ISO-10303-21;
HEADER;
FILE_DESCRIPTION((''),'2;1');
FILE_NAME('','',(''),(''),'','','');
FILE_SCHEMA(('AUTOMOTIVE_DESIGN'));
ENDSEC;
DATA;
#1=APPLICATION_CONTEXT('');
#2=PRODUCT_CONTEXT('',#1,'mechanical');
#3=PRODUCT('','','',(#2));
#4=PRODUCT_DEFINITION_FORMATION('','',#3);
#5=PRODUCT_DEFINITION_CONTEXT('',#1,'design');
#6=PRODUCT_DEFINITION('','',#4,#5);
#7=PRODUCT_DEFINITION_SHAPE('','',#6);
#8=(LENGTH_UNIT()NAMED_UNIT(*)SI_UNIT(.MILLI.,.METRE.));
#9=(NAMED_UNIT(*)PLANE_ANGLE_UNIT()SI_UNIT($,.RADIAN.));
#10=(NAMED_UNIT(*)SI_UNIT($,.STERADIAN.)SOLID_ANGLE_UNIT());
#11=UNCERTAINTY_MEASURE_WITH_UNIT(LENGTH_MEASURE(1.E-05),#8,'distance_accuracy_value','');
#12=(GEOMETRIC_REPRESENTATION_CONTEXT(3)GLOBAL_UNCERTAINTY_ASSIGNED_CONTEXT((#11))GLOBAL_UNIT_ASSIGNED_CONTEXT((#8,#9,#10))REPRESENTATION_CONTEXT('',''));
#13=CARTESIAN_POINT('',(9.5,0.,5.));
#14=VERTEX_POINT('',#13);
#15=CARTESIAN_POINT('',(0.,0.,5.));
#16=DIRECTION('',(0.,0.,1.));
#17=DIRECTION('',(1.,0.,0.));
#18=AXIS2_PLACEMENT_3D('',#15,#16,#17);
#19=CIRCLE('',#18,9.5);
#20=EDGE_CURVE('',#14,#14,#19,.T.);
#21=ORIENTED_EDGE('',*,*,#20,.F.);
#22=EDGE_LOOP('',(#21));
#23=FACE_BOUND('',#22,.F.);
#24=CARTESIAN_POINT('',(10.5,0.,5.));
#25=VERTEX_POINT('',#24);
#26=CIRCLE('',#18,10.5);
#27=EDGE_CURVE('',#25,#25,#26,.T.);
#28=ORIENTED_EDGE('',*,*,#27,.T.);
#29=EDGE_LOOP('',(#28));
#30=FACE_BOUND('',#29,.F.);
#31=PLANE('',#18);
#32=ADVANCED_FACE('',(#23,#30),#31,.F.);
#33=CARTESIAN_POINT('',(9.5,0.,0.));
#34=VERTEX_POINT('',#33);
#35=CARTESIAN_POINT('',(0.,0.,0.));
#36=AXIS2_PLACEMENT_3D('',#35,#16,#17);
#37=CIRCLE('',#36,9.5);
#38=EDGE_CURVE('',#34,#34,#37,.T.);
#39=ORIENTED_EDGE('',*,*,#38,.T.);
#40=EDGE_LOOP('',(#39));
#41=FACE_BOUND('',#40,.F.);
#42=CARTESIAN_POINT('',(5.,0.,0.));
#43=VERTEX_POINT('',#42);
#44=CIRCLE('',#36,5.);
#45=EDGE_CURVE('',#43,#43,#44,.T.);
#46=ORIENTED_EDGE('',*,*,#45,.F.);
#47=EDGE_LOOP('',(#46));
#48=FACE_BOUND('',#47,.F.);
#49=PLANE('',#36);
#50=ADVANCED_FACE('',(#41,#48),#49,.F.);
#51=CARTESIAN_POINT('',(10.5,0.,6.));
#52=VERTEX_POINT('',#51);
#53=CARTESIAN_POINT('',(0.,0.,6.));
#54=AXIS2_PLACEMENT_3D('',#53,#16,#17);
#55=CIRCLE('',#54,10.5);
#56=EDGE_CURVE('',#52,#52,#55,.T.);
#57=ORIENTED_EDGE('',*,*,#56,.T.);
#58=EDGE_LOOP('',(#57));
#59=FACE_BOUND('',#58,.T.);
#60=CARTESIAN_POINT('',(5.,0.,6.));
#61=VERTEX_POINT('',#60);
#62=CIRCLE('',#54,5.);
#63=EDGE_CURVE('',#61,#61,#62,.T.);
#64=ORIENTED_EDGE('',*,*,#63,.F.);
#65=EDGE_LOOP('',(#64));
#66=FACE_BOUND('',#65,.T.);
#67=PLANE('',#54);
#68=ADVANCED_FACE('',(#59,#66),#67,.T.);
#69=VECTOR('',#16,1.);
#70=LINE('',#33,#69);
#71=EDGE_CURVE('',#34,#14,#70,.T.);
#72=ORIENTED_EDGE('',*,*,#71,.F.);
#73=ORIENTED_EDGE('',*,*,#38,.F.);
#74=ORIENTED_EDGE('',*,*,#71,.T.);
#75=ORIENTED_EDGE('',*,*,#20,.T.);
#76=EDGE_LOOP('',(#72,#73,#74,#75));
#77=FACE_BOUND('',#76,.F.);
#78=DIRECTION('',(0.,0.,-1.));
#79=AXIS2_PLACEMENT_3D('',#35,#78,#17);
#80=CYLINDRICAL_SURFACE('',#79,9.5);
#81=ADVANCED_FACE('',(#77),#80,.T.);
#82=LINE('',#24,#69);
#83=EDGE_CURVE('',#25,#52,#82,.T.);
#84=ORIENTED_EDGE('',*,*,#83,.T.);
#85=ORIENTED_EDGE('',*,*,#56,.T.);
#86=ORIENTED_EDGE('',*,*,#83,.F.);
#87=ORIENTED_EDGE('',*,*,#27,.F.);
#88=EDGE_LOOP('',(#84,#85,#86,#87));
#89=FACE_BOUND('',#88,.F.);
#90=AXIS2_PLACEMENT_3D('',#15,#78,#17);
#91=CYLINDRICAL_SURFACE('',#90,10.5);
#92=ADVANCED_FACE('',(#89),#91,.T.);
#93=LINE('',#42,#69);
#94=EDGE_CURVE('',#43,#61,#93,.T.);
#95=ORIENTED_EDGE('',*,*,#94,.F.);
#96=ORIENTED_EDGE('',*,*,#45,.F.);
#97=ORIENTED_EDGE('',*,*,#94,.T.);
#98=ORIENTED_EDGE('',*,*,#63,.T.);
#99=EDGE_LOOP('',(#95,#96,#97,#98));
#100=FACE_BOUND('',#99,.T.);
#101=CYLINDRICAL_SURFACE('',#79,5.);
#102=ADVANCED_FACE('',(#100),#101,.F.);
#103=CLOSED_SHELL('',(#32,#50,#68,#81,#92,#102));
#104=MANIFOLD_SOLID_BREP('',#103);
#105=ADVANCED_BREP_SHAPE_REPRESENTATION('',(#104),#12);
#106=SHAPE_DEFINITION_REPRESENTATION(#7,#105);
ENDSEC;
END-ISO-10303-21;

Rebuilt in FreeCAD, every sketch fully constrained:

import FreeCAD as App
import Part
import Sketcher

doc = App.newDocument("Part")
body = doc.addObject("PartDesign::Body", "Body")

sketch1 = body.newObject("Sketcher::SketchObject", "Sketch")
sketch1.AttachmentSupport = (doc.getObject("XY_Plane"), [""])
sketch1.MapMode = "FlatFace"
sketch1.addGeometry(Part.Circle(App.Vector(0, 0, 0), App.Vector(0, 0, 1), 9.5), False)
sketch1.addGeometry(Part.Circle(App.Vector(0, 0, 0), App.Vector(0, 0, 1), 5), False)
sketch1.addConstraint(Sketcher.Constraint("Coincident", 0, 3, -1, 1))
sketch1.addConstraint(Sketcher.Constraint("Coincident", 1, 3, -1, 1))
sketch1.addConstraint(Sketcher.Constraint("Diameter", 0, 19.0))
sketch1.addConstraint(Sketcher.Constraint("Diameter", 1, 10.0))
pad1 = body.newObject("PartDesign::Pad", "Pad")
pad1.Profile = sketch1
pad1.Length = 5

sketch2 = body.newObject("Sketcher::SketchObject", "Sketch001")
sketch2.AttachmentSupport = (doc.getObject("XY_Plane"), [""])
sketch2.MapMode = "FlatFace"
sketch2.AttachmentOffset = App.Placement(App.Vector(0, 0, 5), App.Rotation())
sketch2.addGeometry(Part.Circle(App.Vector(0, 0, 0), App.Vector(0, 0, 1), 10.5), False)
sketch2.addGeometry(Part.Circle(App.Vector(0, 0, 0), App.Vector(0, 0, 1), 5), False)
sketch2.addConstraint(Sketcher.Constraint("Coincident", 0, 3, -1, 1))
sketch2.addConstraint(Sketcher.Constraint("Coincident", 1, 3, -1, 1))
sketch2.addConstraint(Sketcher.Constraint("Diameter", 0, 21.0))
sketch2.addConstraint(Sketcher.Constraint("Diameter", 1, 10.0))
pad2 = body.newObject("PartDesign::Pad", "Pad001")
pad2.Profile = sketch2
pad2.Length = 1

doc.recompute()
